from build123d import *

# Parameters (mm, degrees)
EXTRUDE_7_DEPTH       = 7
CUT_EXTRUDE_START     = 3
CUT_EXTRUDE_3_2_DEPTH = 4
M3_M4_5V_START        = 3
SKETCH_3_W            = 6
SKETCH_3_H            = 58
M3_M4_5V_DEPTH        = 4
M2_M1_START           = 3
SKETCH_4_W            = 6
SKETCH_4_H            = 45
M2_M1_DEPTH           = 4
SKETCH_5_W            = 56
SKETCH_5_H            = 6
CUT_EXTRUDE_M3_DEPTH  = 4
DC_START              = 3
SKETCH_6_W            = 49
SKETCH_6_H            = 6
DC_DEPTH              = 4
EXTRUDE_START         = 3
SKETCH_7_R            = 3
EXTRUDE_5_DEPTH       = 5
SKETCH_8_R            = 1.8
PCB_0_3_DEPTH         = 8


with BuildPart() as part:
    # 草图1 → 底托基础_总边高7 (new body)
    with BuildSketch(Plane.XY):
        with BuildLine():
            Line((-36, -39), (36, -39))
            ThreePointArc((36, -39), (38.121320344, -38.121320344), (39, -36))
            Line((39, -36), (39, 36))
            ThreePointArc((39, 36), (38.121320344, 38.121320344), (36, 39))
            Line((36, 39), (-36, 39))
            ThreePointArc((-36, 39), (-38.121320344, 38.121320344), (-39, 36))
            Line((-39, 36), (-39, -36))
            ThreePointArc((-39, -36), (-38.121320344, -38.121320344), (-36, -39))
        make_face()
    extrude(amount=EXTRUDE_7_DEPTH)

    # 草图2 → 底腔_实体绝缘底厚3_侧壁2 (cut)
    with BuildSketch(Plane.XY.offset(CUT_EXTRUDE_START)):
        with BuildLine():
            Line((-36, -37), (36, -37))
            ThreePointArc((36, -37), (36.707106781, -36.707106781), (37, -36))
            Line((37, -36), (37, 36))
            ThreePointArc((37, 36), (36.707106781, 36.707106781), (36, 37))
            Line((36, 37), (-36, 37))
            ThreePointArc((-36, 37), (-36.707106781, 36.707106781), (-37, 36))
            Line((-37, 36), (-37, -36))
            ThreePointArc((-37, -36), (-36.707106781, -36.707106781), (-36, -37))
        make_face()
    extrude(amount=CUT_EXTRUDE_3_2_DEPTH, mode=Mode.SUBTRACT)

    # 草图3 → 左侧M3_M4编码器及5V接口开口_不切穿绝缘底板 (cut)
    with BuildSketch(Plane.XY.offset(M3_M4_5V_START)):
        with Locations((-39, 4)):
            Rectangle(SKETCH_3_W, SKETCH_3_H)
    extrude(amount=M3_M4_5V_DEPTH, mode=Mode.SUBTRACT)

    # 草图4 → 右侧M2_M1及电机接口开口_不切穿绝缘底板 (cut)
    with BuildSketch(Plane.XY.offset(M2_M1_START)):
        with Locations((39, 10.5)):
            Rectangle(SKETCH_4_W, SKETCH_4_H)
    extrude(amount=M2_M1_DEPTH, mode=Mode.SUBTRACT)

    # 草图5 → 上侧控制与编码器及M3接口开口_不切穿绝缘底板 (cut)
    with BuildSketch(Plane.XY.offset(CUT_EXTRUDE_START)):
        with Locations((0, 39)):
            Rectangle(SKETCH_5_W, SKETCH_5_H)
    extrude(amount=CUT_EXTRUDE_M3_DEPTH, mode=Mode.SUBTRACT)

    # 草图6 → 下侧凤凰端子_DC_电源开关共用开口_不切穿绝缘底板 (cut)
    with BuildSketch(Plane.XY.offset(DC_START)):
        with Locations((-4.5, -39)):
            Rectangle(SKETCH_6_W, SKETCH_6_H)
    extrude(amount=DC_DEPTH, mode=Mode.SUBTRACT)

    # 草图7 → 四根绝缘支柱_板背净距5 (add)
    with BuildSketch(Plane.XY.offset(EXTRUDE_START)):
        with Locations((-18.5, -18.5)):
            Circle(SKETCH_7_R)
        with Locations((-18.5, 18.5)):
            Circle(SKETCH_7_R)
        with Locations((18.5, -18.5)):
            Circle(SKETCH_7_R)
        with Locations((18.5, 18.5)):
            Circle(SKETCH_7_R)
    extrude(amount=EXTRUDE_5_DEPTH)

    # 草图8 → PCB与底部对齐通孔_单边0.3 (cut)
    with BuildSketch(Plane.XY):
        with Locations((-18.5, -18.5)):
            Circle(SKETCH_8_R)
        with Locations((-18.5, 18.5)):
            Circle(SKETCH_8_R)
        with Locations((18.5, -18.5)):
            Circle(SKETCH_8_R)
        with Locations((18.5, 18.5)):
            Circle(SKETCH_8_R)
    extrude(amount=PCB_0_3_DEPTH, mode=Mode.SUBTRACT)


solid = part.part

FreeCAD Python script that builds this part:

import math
import FreeCAD as App
import Part
import Sketcher


def add_polygon(sketch, points):
    """Adds a closed chain of lines whose ends are joined by coincident constraints."""
    first, n = sketch.GeometryCount, len(points)
    for a, b in zip(points, points[1:] + points[:1]):
        sketch.addGeometry(Part.LineSegment(App.Vector(*a, 0), App.Vector(*b, 0)), False)
    for i in range(n):
        sketch.addConstraint(Sketcher.Constraint("Coincident", first + i, 2, first + (i + 1) % n, 1))

doc = App.newDocument("Part")
body = doc.addObject("PartDesign::Body", "Body")

# Sketch on XY plane
sketch1 = doc.addObject("Sketcher::SketchObject", "Sketch")
body.addObject(sketch1)
sketch1.AttachmentSupport = (doc.XY_Plane, [""])
sketch1.MapMode = "FlatFace"
sketch1.addGeometry(Part.LineSegment(App.Vector(-36, -39, 0), App.Vector(36, -39, 0)), False)
sketch1.addGeometry(Part.ArcOfCircle(Part.Circle(App.Vector(36, -36, 0), App.Vector(0, 0, 1), 3), math.radians(-90), math.radians(0)), False)
sketch1.addGeometry(Part.LineSegment(App.Vector(39, -36, 0), App.Vector(39, 36, 0)), False)
sketch1.addGeometry(Part.ArcOfCircle(Part.Circle(App.Vector(36, 36, 0), App.Vector(0, 0, 1), 3), math.radians(0), math.radians(90)), False)
sketch1.addGeometry(Part.LineSegment(App.Vector(36, 39, 0), App.Vector(-36, 39, 0)), False)
sketch1.addGeometry(Part.ArcOfCircle(Part.Circle(App.Vector(-36, 36, 0), App.Vector(0, 0, 1), 3), math.radians(90), math.radians(180)), False)
sketch1.addGeometry(Part.LineSegment(App.Vector(-39, 36, 0), App.Vector(-39, -36, 0)), False)
sketch1.addGeometry(Part.ArcOfCircle(Part.Circle(App.Vector(-36, -36, 0), App.Vector(0, 0, 1), 3), math.radians(180), math.radians(270)), False)
sketch1.addConstraint(Sketcher.Constraint("Tangent", 0, 2, 1, 1))
sketch1.addConstraint(Sketcher.Constraint("Tangent", 1, 2, 2, 1))
sketch1.addConstraint(Sketcher.Constraint("Tangent", 2, 2, 3, 1))
sketch1.addConstraint(Sketcher.Constraint("Tangent", 3, 2, 4, 1))
sketch1.addConstraint(Sketcher.Constraint("Tangent", 4, 2, 5, 1))
sketch1.addConstraint(Sketcher.Constraint("Tangent", 5, 2, 6, 1))
sketch1.addConstraint(Sketcher.Constraint("Tangent", 6, 2, 7, 1))
sketch1.addConstraint(Sketcher.Constraint("Tangent", 7, 2, 0, 1))
sketch1.addConstraint(Sketcher.Constraint("Horizontal", 0))
sketch1.addConstraint(Sketcher.Constraint("Vertical", 2))
sketch1.addConstraint(Sketcher.Constraint("Horizontal", 4))
sketch1.addConstraint(Sketcher.Constraint("Vertical", 6))
sketch1.addConstraint(Sketcher.Constraint("Equal", 1, 3))
sketch1.addConstraint(Sketcher.Constraint("Equal", 3, 5))
sketch1.addConstraint(Sketcher.Constraint("Equal", 5, 7))
sketch1.addConstraint(Sketcher.Constraint("Symmetric", 1, 3, 5, 3, -1, 1))
sketch1.addConstraint(Sketcher.Constraint("Equal", 4, 2))
sketch1.addConstraint(Sketcher.Constraint("Radius", 1, 3.0))
sketch1.addConstraint(Sketcher.Constraint("DistanceX", 0, 1, 0, 2, 72.0))
pad1 = doc.addObject("PartDesign::Pad", "Pad")
body.addObject(pad1)
pad1.Profile = sketch1
pad1.Length = 7

# Sketch on XY plane
sketch2 = doc.addObject("Sketcher::SketchObject", "Sketch001")
body.addObject(sketch2)
sketch2.AttachmentSupport = (doc.XY_Plane, [""])
sketch2.MapMode = "FlatFace"
sketch2.AttachmentOffset = App.Placement(App.Vector(0, 0, 3), App.Rotation())
sketch2.addGeometry(Part.LineSegment(App.Vector(-36, -37, 0), App.Vector(36, -37, 0)), False)
sketch2.addGeometry(Part.ArcOfCircle(Part.Circle(App.Vector(36, -36, 0), App.Vector(0, 0, 1), 1), math.radians(-90), math.radians(0)), False)
sketch2.addGeometry(Part.LineSegment(App.Vector(37, -36, 0), App.Vector(37, 36, 0)), False)
sketch2.addGeometry(Part.ArcOfCircle(Part.Circle(App.Vector(36, 36, 0), App.Vector(0, 0, 1), 1), math.radians(0), math.radians(90)), False)
sketch2.addGeometry(Part.LineSegment(App.Vector(36, 37, 0), App.Vector(-36, 37, 0)), False)
sketch2.addGeometry(Part.ArcOfCircle(Part.Circle(App.Vector(-36, 36, 0), App.Vector(0, 0, 1), 1), math.radians(90), math.radians(180)), False)
sketch2.addGeometry(Part.LineSegment(App.Vector(-37, 36, 0), App.Vector(-37, -36, 0)), False)
sketch2.addGeometry(Part.ArcOfCircle(Part.Circle(App.Vector(-36, -36, 0), App.Vector(0, 0, 1), 1), math.radians(-180), math.radians(-90)), False)
sketch2.addConstraint(Sketcher.Constraint("Tangent", 0, 2, 1, 1))
sketch2.addConstraint(Sketcher.Constraint("Tangent", 1, 2, 2, 1))
sketch2.addConstraint(Sketcher.Constraint("Tangent", 2, 2, 3, 1))
sketch2.addConstraint(Sketcher.Constraint("Tangent", 3, 2, 4, 1))
sketch2.addConstraint(Sketcher.Constraint("Tangent", 4, 2, 5, 1))
sketch2.addConstraint(Sketcher.Constraint("Tangent", 5, 2, 6, 1))
sketch2.addConstraint(Sketcher.Constraint("Tangent", 6, 2, 7, 1))
sketch2.addConstraint(Sketcher.Constraint("Tangent", 7, 2, 0, 1))
sketch2.addConstraint(Sketcher.Constraint("Horizontal", 0))
sketch2.addConstraint(Sketcher.Constraint("Vertical", 2))
sketch2.addConstraint(Sketcher.Constraint("Horizontal", 4))
sketch2.addConstraint(Sketcher.Constraint("Vertical", 6))
sketch2.addConstraint(Sketcher.Constraint("Equal", 1, 3))
sketch2.addConstraint(Sketcher.Constraint("Equal", 3, 5))
sketch2.addConstraint(Sketcher.Constraint("Equal", 5, 7))
sketch2.addConstraint(Sketcher.Constraint("Symmetric", 1, 3, 5, 3, -1, 1))
sketch2.addConstraint(Sketcher.Constraint("Equal", 4, 2))
sketch2.addConstraint(Sketcher.Constraint("Radius", 1, 1.0))
sketch2.addConstraint(Sketcher.Constraint("DistanceX", 0, 1, 0, 2, 72.0))
pocket1 = doc.addObject("PartDesign::Pocket", "Pocket")
body.addObject(pocket1)
pocket1.Profile = sketch2
pocket1.Length = 4
pocket1.Reversed = True

# Sketch on XY plane
sketch3 = doc.addObject("Sketcher::SketchObject", "Sketch002")
body.addObject(sketch3)
sketch3.AttachmentSupport = (doc.XY_Plane, [""])
sketch3.MapMode = "FlatFace"
sketch3.AttachmentOffset = App.Placement(App.Vector(0, 0, 3), App.Rotation())
add_polygon(sketch3, [(-42, 33), (-42, -25), (-36, -25), (-36, 33)])  # lines 0-3
sketch3.addConstraint(Sketcher.Constraint("Vertical", 0))
sketch3.addConstraint(Sketcher.Constraint("Horizontal", 1))
sketch3.addConstraint(Sketcher.Constraint("Vertical", 2))
sketch3.addConstraint(Sketcher.Constraint("Horizontal", 3))
sketch3.addConstraint(Sketcher.Constraint("DistanceX", 1, 1, 1, 2, 6.0))
sketch3.addConstraint(Sketcher.Constraint("DistanceY", 0, 2, 0, 1, 58.0))
sketch3.addConstraint(Sketcher.Constraint("DistanceX", 0, 2, -1, 1, 42.0))
sketch3.addConstraint(Sketcher.Constraint("DistanceY", 0, 2, -1, 1, 25.0))
pocket2 = doc.addObject("PartDesign::Pocket", "Pocket001")
body.addObject(pocket2)
pocket2.Profile = sketch3
pocket2.Length = 4
pocket2.Reversed = True

# Sketch on XY plane
sketch4 = doc.addObject("Sketcher::SketchObject", "Sketch003")
body.addObject(sketch4)
sketch4.AttachmentSupport = (doc.XY_Plane, [""])
sketch4.MapMode = "FlatFace"
sketch4.AttachmentOffset = App.Placement(App.Vector(0, 0, 3), App.Rotation())
add_polygon(sketch4, [(36, 33), (36, -12), (42, -12), (42, 33)])  # lines 0-3
sketch4.addConstraint(Sketcher.Constraint("Vertical", 0))
sketch4.addConstraint(Sketcher.Constraint("Horizontal", 1))
sketch4.addConstraint(Sketcher.Constraint("Vertical", 2))
sketch4.addConstraint(Sketcher.Constraint("Horizontal", 3))
sketch4.addConstraint(Sketcher.Constraint("DistanceX", 1, 1, 1, 2, 6.0))
sketch4.addConstraint(Sketcher.Constraint("DistanceY", 0, 2, 0, 1, 45.0))
sketch4.addConstraint(Sketcher.Constraint("DistanceX", -1, 1, 0, 2, 36.0))
sketch4.addConstraint(Sketcher.Constraint("DistanceY", 0, 2, -1, 1, 12.0))
pocket3 = doc.addObject("PartDesign::Pocket", "Pocket002")
body.addObject(pocket3)
pocket3.Profile = sketch4
pocket3.Length = 4
pocket3.Reversed = True

# Sketch on XY plane
sketch5 = doc.addObject("Sketcher::SketchObject", "Sketch004")
body.addObject(sketch5)
sketch5.AttachmentSupport = (doc.XY_Plane, [""])
sketch5.MapMode = "FlatFace"
sketch5.AttachmentOffset = App.Placement(App.Vector(0, 0, 3), App.Rotation())
add_polygon(sketch5, [(-28, 42), (-28, 36), (28, 36), (28, 42)])  # lines 0-3
sketch5.addConstraint(Sketcher.Constraint("Vertical", 0))
sketch5.addConstraint(Sketcher.Constraint("Horizontal", 1))
sketch5.addConstraint(Sketcher.Constraint("Vertical", 2))
sketch5.addConstraint(Sketcher.Constraint("Horizontal", 3))
sketch5.addConstraint(Sketcher.Constraint("DistanceX", 1, 1, 1, 2, 56.0))
sketch5.addConstraint(Sketcher.Constraint("DistanceY", 0, 2, 0, 1, 6.0))
sketch5.addConstraint(Sketcher.Constraint("DistanceX", 0, 2, -1, 1, 28.0))
sketch5.addConstraint(Sketcher.Constraint("DistanceY", -1, 1, 0, 2, 36.0))
pocket4 = doc.addObject("PartDesign::Pocket", "Pocket003")
body.addObject(pocket4)
pocket4.Profile = sketch5
pocket4.Length = 4
pocket4.Reversed = True

# Sketch on XY plane
sketch6 = doc.addObject("Sketcher::SketchObject", "Sketch005")
body.addObject(sketch6)
sketch6.AttachmentSupport = (doc.XY_Plane, [""])
sketch6.MapMode = "FlatFace"
sketch6.AttachmentOffset = App.Placement(App.Vector(0, 0, 3), App.Rotation())
add_polygon(sketch6, [(-29, -36), (-29, -42), (20, -42), (20, -36)])  # lines 0-3
sketch6.addConstraint(Sketcher.Constraint("Vertical", 0))
sketch6.addConstraint(Sketcher.Constraint("Horizontal", 1))
sketch6.addConstraint(Sketcher.Constraint("Vertical", 2))
sketch6.addConstraint(Sketcher.Constraint("Horizontal", 3))
sketch6.addConstraint(Sketcher.Constraint("DistanceX", 1, 1, 1, 2, 49.0))
sketch6.addConstraint(Sketcher.Constraint("DistanceY", 0, 2, 0, 1, 6.0))
sketch6.addConstraint(Sketcher.Constraint("DistanceX", 0, 2, -1, 1, 29.0))
sketch6.addConstraint(Sketcher.Constraint("DistanceY", 0, 2, -1, 1, 42.0))
pocket5 = doc.addObject("PartDesign::Pocket", "Pocket004")
body.addObject(pocket5)
pocket5.Profile = sketch6
pocket5.Length = 4
pocket5.Reversed = True

# Sketch on XY plane
sketch7 = doc.addObject("Sketcher::SketchObject", "Sketch006")
body.addObject(sketch7)
sketch7.AttachmentSupport = (doc.XY_Plane, [""])
sketch7.MapMode = "FlatFace"
sketch7.AttachmentOffset = App.Placement(App.Vector(0, 0, 3), App.Rotation())
sketch7.addGeometry(Part.Circle(App.Vector(-18.5, -18.5, 0), App.Vector(0, 0, 1), 3), False)
sketch7.addGeometry(Part.Circle(App.Vector(-18.5, 18.5, 0), App.Vector(0, 0, 1), 3), False)
sketch7.addGeometry(Part.Circle(App.Vector(18.5, -18.5, 0), App.Vector(0, 0, 1), 3), False)
sketch7.addGeometry(Part.Circle(App.Vector(18.5, 18.5, 0), App.Vector(0, 0, 1), 3), False)
sketch7.addConstraint(Sketcher.Constraint("Equal", 0, 1))
sketch7.addConstraint(Sketcher.Constraint("Equal", 1, 2))
sketch7.addConstraint(Sketcher.Constraint("Equal", 2, 3))
sketch7.addConstraint(Sketcher.Constraint("Symmetric", 1, 3, 2, 3, -1, 1))
sketch7.addConstraint(Sketcher.Constraint("Symmetric", 0, 3, 3, 3, -1, 1))
sketch7.addConstraint(Sketcher.Constraint("Symmetric", 0, 3, 2, 3, -2))
sketch7.addConstraint(Sketcher.Constraint("Diameter", 0, 6.0))
sketch7.addConstraint(Sketcher.Constraint("DistanceY", 0, 3, 1, 3, 37.0))
sketch7.addConstraint(Sketcher.Constraint("DistanceX", 0, 3, 2, 3, 37.0))
pad2 = doc.addObject("PartDesign::Pad", "Pad001")
body.addObject(pad2)
pad2.Profile = sketch7
pad2.Length = 5

# Sketch on XY plane
sketch8 = doc.addObject("Sketcher::SketchObject", "Sketch007")
body.addObject(sketch8)
sketch8.AttachmentSupport = (doc.XY_Plane, [""])
sketch8.MapMode = "FlatFace"
sketch8.addGeometry(Part.Circle(App.Vector(-18.5, -18.5, 0), App.Vector(0, 0, 1), 1.8), False)
sketch8.addGeometry(Part.Circle(App.Vector(-18.5, 18.5, 0), App.Vector(0, 0, 1), 1.8), False)
sketch8.addGeometry(Part.Circle(App.Vector(18.5, -18.5, 0), App.Vector(0, 0, 1), 1.8), False)
sketch8.addGeometry(Part.Circle(App.Vector(18.5, 18.5, 0), App.Vector(0, 0, 1), 1.8), False)
sketch8.addConstraint(Sketcher.Constraint("Equal", 0, 1))
sketch8.addConstraint(Sketcher.Constraint("Equal", 1, 2))
sketch8.addConstraint(Sketcher.Constraint("Equal", 2, 3))
sketch8.addConstraint(Sketcher.Constraint("Symmetric", 1, 3, 2, 3, -1, 1))
sketch8.addConstraint(Sketcher.Constraint("Symmetric", 0, 3, 3, 3, -1, 1))
sketch8.addConstraint(Sketcher.Constraint("Symmetric", 0, 3, 2, 3, -2))
sketch8.addConstraint(Sketcher.Constraint("Diameter", 0, 3.6))
sketch8.addConstraint(Sketcher.Constraint("DistanceY", 0, 3, 1, 3, 37.0))
sketch8.addConstraint(Sketcher.Constraint("DistanceX", 0, 3, 2, 3, 37.0))
pocket6 = doc.addObject("PartDesign::Pocket", "Pocket005")
body.addObject(pocket6)
pocket6.Profile = sketch8
pocket6.Length = 8
pocket6.Reversed = True

doc.recompute()
